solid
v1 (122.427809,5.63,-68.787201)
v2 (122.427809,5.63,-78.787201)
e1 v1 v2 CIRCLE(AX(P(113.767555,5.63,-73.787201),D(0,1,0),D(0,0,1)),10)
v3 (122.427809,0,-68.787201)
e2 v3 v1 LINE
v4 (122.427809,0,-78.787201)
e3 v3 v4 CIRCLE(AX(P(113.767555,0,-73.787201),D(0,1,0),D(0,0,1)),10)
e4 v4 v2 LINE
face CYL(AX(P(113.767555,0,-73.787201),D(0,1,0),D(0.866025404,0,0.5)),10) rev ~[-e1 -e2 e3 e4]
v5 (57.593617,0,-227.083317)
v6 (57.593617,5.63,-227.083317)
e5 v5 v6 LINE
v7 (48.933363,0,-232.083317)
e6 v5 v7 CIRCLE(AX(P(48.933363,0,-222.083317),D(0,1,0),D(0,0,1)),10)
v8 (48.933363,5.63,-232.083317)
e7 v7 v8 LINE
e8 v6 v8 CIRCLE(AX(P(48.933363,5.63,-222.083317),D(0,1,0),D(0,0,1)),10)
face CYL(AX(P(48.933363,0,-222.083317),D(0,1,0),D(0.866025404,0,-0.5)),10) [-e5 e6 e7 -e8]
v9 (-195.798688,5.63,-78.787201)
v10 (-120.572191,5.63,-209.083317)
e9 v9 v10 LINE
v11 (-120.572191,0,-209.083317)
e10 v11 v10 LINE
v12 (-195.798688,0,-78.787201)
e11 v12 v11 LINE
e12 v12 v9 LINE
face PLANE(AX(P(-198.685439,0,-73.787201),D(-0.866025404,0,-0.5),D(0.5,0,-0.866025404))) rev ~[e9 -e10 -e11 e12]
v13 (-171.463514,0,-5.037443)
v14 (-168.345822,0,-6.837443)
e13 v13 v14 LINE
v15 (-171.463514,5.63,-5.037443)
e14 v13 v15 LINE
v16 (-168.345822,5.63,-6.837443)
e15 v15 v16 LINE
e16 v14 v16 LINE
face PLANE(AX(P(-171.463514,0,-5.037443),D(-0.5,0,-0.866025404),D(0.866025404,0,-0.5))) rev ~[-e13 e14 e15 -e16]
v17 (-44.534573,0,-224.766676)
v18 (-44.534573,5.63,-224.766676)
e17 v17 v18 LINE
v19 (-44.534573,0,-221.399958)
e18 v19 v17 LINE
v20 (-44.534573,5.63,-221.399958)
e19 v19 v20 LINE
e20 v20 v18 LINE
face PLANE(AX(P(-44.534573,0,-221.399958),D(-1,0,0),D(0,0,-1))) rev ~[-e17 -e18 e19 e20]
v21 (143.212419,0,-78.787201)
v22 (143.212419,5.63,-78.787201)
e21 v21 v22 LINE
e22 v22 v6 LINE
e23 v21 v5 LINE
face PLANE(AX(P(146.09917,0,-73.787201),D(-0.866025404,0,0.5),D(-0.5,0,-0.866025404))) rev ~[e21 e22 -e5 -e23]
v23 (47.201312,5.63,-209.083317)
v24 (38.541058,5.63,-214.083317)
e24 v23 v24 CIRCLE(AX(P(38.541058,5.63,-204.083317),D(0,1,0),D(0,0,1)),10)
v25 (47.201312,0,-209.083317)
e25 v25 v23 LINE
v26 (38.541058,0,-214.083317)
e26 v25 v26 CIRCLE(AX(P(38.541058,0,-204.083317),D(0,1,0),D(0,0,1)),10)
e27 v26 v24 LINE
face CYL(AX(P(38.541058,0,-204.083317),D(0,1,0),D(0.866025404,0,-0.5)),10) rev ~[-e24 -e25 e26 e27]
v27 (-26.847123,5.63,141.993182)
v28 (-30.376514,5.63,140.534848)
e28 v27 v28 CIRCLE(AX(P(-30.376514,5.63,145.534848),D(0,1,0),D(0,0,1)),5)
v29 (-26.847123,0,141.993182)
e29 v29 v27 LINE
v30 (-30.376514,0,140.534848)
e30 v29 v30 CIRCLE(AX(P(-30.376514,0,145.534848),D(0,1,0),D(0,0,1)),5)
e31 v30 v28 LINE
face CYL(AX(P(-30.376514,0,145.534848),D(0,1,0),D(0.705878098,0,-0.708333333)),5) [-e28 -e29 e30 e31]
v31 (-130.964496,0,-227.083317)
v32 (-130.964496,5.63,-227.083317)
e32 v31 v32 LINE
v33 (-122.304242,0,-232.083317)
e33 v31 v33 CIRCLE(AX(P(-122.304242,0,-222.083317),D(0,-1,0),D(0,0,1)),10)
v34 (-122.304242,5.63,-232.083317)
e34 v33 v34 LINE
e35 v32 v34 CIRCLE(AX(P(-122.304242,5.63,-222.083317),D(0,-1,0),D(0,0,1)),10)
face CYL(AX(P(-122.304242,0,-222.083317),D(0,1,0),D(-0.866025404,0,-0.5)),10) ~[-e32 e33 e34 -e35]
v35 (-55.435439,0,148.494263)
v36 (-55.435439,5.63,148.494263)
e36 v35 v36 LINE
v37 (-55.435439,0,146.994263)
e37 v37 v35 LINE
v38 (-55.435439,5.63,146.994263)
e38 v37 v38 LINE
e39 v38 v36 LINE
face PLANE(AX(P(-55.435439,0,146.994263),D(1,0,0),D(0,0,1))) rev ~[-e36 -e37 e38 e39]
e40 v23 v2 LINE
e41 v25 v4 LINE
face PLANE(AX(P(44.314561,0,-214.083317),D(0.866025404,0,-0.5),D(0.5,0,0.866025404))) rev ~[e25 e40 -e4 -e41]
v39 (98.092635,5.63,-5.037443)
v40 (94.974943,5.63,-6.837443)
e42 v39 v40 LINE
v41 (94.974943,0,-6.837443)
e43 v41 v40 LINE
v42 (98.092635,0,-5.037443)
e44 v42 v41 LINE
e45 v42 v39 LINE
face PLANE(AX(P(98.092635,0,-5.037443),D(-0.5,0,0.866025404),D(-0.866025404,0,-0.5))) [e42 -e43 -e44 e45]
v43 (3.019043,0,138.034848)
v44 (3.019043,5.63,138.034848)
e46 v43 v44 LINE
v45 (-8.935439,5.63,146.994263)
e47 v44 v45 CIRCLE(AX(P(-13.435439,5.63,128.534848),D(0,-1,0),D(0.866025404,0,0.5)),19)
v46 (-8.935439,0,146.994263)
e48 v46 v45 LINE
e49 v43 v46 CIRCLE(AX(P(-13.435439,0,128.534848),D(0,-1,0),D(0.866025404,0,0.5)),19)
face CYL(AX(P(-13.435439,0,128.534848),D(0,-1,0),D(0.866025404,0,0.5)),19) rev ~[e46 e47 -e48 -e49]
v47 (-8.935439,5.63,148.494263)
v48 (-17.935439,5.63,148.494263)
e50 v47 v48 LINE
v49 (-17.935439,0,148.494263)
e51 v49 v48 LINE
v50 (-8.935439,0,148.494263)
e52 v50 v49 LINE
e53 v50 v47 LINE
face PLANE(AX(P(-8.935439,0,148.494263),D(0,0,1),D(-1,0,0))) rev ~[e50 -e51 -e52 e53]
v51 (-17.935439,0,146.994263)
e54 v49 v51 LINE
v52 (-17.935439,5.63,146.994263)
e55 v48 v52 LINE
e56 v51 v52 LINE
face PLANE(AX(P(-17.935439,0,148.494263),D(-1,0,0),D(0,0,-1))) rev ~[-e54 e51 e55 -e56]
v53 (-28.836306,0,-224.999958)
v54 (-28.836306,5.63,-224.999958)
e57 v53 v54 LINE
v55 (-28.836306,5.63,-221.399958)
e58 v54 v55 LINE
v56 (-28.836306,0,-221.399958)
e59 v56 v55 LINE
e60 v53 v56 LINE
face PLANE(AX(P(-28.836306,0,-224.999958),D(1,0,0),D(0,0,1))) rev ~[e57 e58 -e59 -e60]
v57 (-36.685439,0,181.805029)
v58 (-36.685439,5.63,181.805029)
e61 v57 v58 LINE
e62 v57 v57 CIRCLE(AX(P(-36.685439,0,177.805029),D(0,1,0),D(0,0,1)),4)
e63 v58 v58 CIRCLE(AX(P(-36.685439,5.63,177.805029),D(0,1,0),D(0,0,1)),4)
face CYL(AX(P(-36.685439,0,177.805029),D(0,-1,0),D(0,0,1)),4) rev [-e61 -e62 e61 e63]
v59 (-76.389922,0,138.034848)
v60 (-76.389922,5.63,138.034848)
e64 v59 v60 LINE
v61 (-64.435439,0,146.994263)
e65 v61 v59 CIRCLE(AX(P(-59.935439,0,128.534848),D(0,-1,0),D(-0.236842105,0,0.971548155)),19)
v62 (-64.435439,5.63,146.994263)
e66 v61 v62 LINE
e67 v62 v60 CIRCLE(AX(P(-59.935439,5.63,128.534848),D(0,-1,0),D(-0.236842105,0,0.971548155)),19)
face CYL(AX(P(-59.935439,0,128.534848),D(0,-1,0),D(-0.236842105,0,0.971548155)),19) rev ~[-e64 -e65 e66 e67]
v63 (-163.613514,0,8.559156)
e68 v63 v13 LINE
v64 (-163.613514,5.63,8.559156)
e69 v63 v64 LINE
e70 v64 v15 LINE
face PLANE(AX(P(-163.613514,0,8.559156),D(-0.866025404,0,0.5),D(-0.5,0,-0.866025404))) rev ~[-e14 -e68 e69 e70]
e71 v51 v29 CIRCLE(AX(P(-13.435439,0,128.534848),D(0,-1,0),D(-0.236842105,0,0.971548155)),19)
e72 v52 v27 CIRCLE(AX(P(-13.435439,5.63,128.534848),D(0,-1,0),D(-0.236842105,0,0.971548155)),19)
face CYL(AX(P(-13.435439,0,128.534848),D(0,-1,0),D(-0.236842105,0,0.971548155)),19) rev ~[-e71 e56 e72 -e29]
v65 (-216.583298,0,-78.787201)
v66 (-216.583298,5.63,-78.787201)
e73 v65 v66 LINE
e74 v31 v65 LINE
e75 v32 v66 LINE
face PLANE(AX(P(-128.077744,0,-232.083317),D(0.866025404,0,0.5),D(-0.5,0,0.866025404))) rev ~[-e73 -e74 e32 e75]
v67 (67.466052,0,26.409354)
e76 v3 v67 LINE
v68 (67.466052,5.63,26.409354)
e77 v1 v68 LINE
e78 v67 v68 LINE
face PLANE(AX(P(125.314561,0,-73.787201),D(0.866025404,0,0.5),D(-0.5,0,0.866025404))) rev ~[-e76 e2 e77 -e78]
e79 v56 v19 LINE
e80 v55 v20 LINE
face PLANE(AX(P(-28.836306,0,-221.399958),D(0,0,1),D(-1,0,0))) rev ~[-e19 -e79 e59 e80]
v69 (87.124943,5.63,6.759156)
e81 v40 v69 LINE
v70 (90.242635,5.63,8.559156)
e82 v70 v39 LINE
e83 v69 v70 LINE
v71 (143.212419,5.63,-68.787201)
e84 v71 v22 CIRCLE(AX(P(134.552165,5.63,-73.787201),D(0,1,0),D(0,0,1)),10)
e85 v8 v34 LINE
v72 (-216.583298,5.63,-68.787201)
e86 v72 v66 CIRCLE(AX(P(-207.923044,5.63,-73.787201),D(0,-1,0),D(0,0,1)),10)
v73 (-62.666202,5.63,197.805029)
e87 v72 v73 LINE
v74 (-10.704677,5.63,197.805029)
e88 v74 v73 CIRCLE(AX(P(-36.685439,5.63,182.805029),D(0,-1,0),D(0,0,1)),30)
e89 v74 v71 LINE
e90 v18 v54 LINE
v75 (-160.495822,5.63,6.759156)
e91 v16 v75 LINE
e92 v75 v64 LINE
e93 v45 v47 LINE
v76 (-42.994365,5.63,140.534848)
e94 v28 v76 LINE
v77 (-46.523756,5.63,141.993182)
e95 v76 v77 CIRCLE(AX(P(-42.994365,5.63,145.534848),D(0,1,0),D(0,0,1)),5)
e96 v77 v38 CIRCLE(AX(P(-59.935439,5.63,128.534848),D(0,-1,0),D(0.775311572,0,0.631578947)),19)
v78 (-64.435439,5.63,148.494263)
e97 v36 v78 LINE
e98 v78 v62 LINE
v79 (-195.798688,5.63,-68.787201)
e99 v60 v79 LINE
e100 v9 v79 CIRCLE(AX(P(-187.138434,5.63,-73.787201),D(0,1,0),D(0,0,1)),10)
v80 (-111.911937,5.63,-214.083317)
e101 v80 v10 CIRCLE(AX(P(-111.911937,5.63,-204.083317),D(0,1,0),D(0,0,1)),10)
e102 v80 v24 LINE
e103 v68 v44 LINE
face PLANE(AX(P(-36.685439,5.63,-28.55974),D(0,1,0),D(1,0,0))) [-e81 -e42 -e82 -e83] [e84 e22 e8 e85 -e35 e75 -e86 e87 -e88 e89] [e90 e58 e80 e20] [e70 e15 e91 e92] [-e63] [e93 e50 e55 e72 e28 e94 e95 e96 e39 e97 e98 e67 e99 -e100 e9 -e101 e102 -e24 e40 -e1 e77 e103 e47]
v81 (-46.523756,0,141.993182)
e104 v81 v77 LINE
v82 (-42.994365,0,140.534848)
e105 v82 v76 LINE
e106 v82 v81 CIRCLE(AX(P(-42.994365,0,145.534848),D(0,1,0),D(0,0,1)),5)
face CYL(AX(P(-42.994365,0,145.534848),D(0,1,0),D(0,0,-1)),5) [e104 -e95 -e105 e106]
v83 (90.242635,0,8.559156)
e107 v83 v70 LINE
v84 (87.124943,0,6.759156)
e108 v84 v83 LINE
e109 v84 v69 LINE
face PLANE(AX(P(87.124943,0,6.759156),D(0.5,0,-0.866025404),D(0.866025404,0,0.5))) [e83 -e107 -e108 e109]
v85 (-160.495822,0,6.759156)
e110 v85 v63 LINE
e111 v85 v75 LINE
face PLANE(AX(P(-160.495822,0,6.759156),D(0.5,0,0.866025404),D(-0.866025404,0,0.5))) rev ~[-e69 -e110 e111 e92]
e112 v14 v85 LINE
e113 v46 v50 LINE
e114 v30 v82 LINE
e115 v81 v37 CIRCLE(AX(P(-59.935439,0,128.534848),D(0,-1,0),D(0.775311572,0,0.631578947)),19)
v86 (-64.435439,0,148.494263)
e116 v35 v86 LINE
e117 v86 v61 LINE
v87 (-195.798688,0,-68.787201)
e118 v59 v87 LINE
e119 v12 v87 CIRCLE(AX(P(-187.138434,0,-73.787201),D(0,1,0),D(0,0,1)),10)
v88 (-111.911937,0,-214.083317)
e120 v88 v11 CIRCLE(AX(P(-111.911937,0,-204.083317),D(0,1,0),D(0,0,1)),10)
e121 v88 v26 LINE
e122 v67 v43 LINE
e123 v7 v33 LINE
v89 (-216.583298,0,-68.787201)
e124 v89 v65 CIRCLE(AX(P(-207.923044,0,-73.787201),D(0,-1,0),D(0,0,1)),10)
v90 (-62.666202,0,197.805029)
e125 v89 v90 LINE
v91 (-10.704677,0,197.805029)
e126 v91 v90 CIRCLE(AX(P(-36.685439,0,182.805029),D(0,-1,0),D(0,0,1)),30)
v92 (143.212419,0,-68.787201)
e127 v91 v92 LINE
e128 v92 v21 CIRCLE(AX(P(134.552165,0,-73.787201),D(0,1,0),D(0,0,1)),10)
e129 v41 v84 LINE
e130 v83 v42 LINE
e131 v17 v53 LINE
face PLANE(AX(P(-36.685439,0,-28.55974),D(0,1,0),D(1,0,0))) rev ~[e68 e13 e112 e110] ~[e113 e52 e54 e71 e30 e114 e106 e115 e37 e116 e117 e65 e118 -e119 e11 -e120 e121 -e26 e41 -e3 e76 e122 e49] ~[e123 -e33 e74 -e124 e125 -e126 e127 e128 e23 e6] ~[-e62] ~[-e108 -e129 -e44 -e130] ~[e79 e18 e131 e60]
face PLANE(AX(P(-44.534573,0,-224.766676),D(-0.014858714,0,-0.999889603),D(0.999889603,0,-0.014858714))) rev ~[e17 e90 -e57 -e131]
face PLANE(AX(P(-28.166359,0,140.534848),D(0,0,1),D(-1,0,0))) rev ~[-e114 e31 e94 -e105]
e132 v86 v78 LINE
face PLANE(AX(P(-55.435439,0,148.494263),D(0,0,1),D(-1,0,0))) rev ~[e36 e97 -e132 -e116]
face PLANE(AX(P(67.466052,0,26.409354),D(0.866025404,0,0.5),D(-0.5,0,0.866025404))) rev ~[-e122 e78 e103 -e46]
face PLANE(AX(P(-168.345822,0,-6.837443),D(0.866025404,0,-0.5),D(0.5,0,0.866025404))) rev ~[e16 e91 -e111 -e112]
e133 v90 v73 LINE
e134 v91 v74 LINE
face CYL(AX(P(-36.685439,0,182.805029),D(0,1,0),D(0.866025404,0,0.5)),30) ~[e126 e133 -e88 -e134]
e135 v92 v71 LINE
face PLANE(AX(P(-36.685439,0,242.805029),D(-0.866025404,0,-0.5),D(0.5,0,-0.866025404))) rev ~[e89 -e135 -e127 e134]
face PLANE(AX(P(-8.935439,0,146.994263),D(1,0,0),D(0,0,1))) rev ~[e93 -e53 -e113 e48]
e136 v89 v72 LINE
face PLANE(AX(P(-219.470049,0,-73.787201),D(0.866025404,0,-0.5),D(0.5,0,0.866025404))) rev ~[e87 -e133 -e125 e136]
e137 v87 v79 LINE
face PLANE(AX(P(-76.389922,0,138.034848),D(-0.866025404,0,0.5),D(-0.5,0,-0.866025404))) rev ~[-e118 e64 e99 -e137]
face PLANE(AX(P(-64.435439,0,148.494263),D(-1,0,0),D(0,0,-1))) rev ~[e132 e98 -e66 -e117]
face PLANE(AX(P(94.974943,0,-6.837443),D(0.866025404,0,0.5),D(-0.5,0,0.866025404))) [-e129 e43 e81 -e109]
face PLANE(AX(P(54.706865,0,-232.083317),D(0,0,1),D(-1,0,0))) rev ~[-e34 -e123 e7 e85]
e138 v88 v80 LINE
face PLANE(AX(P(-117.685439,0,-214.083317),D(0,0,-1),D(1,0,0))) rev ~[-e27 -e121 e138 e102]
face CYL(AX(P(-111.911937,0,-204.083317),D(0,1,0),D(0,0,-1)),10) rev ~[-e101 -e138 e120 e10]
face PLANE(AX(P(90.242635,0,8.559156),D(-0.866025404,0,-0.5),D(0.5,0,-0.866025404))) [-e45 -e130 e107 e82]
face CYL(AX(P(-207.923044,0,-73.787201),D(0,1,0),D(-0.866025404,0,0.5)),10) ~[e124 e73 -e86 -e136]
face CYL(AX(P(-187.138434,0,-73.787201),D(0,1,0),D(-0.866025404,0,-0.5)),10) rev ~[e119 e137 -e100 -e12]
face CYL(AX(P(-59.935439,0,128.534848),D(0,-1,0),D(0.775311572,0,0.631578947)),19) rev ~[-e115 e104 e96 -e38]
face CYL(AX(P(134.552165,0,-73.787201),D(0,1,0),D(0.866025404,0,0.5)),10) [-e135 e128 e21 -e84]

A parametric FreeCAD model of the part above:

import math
import FreeCAD as App
import Part
import Sketcher

V = App.Vector
Q = App.Units.Quantity


def edges_at(feature, points):
    """Names of the edges that pass closest to the given points."""
    edges = feature.Shape.Edges
    near = lambda p: min(range(len(edges)), key=lambda i: edges[i].distToShape(Part.Vertex(*p))[0])
    return sorted({f"Edge{near(p) + 1}" for p in points})


def add_polygon(sketch, points):
    """Adds a closed chain of lines whose ends are joined by coincident constraints."""
    first, n = sketch.GeometryCount, len(points)
    for a, b in zip(points, points[1:] + points[:1]):
        sketch.addGeometry(Part.LineSegment(App.Vector(*a, 0), App.Vector(*b, 0)), False)
    for i in range(n):
        sketch.addConstraint(Sketcher.Constraint("Coincident", first + i, 2, first + (i + 1) % n, 1))

doc = App.newDocument("Part")
body = doc.addObject("PartDesign::Body", "Body")

sketch1 = body.newObject("Sketcher::SketchObject", "Sketch")
sketch1.AttachmentSupport = (doc.getObject("XZ_Plane"), [""])
sketch1.MapMode = "FlatFace"
add_polygon(sketch1, [(-36.7, 242.8), (146.1, -73.8), (54.7, -232.1), (-128.1, -232.1), (-219.5, -73.8)])
add_polygon(sketch1, [(-163.6, 8.6), (-171.5, -5), (-168.3, -6.8), (-160.5, 6.8)])
sketch1.addGeometry(Part.Circle(V(-36.7, 177.8, 0), V(0, 0, 1), 4), False)
add_polygon(sketch1, [(95, -6.8), (98.1, -5), (90.2, 8.6), (87.1, 6.8)])
sketch1.addGeometry(Part.LineSegment(V(125.3, -73.8, 0), V(67.5, 26.4, 0)), False)
sketch1.addGeometry(Part.LineSegment(V(67.5, 26.4, 0), V(3, 138, 0)), False)
sketch1.addGeometry(Part.ArcOfCircle(Part.Circle(V(-13.4, 128.5, 0), V(0, 0, 1), 19), math.radians(30), math.radians(76)), False)
sketch1.addGeometry(Part.LineSegment(V(-8.9, 147, 0), V(-8.9, 148.5, 0)), False)
sketch1.addGeometry(Part.LineSegment(V(-8.9, 148.5, 0), V(-17.9, 148.5, 0)), False)
sketch1.addGeometry(Part.LineSegment(V(-17.9, 148.5, 0), V(-17.9, 147, 0)), False)
sketch1.addGeometry(Part.ArcOfCircle(Part.Circle(V(-13.4, 128.5, 0), V(0, 0, 1), 19), math.radians(104), math.radians(141)), False)
sketch1.addGeometry(Part.LineSegment(V(-28.2, 140.5, 0), V(-45.2, 140.5, 0)), False)
sketch1.addGeometry(Part.ArcOfCircle(Part.Circle(V(-59.9, 128.5, 0), V(0, 0, 1), 19), math.radians(39), math.radians(76)), False)
sketch1.addGeometry(Part.LineSegment(V(-55.4, 147, 0), V(-55.4, 148.5, 0)), False)
sketch1.addGeometry(Part.LineSegment(V(-55.4, 148.5, 0), V(-64.4, 148.5, 0)), False)
sketch1.addGeometry(Part.LineSegment(V(-64.4, 148.5, 0), V(-64.4, 147, 0)), False)
sketch1.addGeometry(Part.ArcOfCircle(Part.Circle(V(-59.9, 128.5, 0), V(0, 0, 1), 19), math.radians(104), math.radians(150)), False)
sketch1.addGeometry(Part.LineSegment(V(-76.4, 138, 0), V(-198.7, -73.8, 0)), False)
sketch1.addGeometry(Part.LineSegment(V(-198.7, -73.8, 0), V(-117.7, -214.1, 0)), False)
sketch1.addGeometry(Part.LineSegment(V(-117.7, -214.1, 0), V(44.3, -214.1, 0)), False)
sketch1.addGeometry(Part.LineSegment(V(44.3, -214.1, 0), V(125.3, -73.8, 0)), False)
add_polygon(sketch1, [(-44.5, -221.4), (-44.5, -224.8), (-28.8, -225), (-28.8, -221.4)])
sketch1.addConstraint([
    Sketcher.Constraint("Coincident", 14, 2, 15, 1),
    Sketcher.Constraint("Tangent", 15, 2, 16, 1),
    Sketcher.Constraint("Coincident", 16, 2, 17, 1),
    Sketcher.Constraint("Coincident", 17, 2, 18, 1),
    Sketcher.Constraint("Coincident", 18, 2, 19, 1),
    Sketcher.Constraint("Coincident", 19, 2, 20, 1),
    Sketcher.Constraint("Coincident", 20, 2, 21, 1),
    Sketcher.Constraint("Coincident", 21, 2, 22, 1),
    Sketcher.Constraint("Coincident", 22, 2, 23, 1),
    Sketcher.Constraint("Coincident", 23, 2, 24, 1),
    Sketcher.Constraint("Coincident", 24, 2, 25, 1),
    Sketcher.Constraint("Coincident", 25, 2, 26, 1),
    Sketcher.Constraint("Tangent", 26, 2, 27, 1),
    Sketcher.Constraint("Coincident", 27, 2, 28, 1),
    Sketcher.Constraint("Coincident", 28, 2, 29, 1),
    Sketcher.Constraint("Coincident", 29, 2, 30, 1),
    Sketcher.Constraint("Coincident", 30, 2, 14, 1),
    Sketcher.Constraint("Horizontal", 2),
    Sketcher.Constraint("Vertical", 17),
    Sketcher.Constraint("Horizontal", 18),
    Sketcher.Constraint("Vertical", 19),
    Sketcher.Constraint("Horizontal", 21),
    Sketcher.Constraint("Vertical", 23),
    Sketcher.Constraint("Horizontal", 24),
    Sketcher.Constraint("Vertical", 25),
    Sketcher.Constraint("Horizontal", 29),
    Sketcher.Constraint("Vertical", 31),
    Sketcher.Constraint("Vertical", 33),
    Sketcher.Constraint("Horizontal", 34),
    Sketcher.Constraint("Coincident", 20, 3, 16, 3),
    Sketcher.Constraint("Coincident", 26, 3, 22, 3),
    Sketcher.Constraint("Equal", 16, 20),
    Sketcher.Constraint("Equal", 20, 22),
    Sketcher.Constraint("Equal", 22, 26),
    Sketcher.Constraint("Parallel", 0, 3),
    Sketcher.Constraint("Parallel", 1, 4),
    Sketcher.Constraint("Parallel", 4, 5),
    Sketcher.Constraint("Perpendicular", 5, 6),
    Sketcher.Constraint("Perpendicular", 6, 7),
    Sketcher.Constraint("Perpendicular", 7, 8),
    Sketcher.Constraint("Perpendicular", 3, 10),
    Sketcher.Constraint("Perpendicular", 10, 11),
    Sketcher.Constraint("Perpendicular", 11, 12),
    Sketcher.Constraint("Perpendicular", 12, 13),
    Sketcher.Constraint("Parallel", 13, 14),
    Sketcher.Constraint("Parallel", 14, 15),
    Sketcher.Constraint("Perpendicular", 8, 27),
    Sketcher.Constraint("Parallel", 15, 28),
    Sketcher.Constraint("Parallel", 27, 30),
    Sketcher.Constraint("Horizontal", 20, 3, 22, 3),
    Sketcher.Constraint("Horizontal", 0, 2, 3, 2),
    Sketcher.Constraint("Horizontal", 5, 2, 10, 2),
    Sketcher.Constraint("Horizontal", 8, 2, 11, 2),
    Sketcher.Constraint("Horizontal", 7, 2, 12, 2),
    Sketcher.Constraint("Horizontal", 16, 2, 19, 2),
    Sketcher.Constraint("Horizontal", 19, 2, 22, 2),
    Sketcher.Constraint("Horizontal", 18, 2, 23, 2),
    Sketcher.Constraint("Horizontal", 22, 2, 25, 2),
    Sketcher.Constraint("Horizontal", 15, 2, 26, 2),
    Sketcher.Constraint("Horizontal", 3, 2, 27, 2),
    Sketcher.Constraint("Horizontal", 27, 2, 30, 2),
    Sketcher.Constraint("Vertical", 9, 3, 4, 2),
    Sketcher.Constraint("Equal", 13, 32),
    Sketcher.Constraint("Diameter", 9, Q("8 mm")),
    Sketcher.Constraint("Radius", 16, Q("19 mm")),
    Sketcher.Constraint("DistanceX", 18, 2, 18, 1, Q("9 mm")),
    Sketcher.Constraint("DistanceX", 29, 1, 29, 2, Q("162 mm")),
    Sketcher.Constraint("Angle", 0, Q("-60 deg")),
    Sketcher.Constraint("Distance", 28, Q("162 mm")),
    Sketcher.Constraint("DistanceY", 17, 1, 17, 2, Q("1.5 mm")),
    Sketcher.Constraint("DistanceY", 33, 1, 33, 2, Q("3.6 mm")),
    Sketcher.Constraint("DistanceY", 9, 3, 4, 2, Q("65 mm")),
    Sketcher.Constraint("DistanceX", 22, 3, 16, 2, Q("51 mm")),
    Sketcher.Constraint("DistanceY", 20, 3, 20, 2, Q("12 mm")),
    Sketcher.Constraint("DistanceY", 2, 2, 28, 2, Q("18 mm")),
    Sketcher.Constraint("Distance", 5, Q("15.7 mm")),
    Sketcher.Constraint("Distance", 6, Q("3.6 mm")),
    Sketcher.Constraint("DistanceX", 9, 3, 16, 3, Q("23.25 mm")),
    Sketcher.Constraint("DistanceX", 2, 2, 2, 1, Q("182.78461 mm")),
    Sketcher.Constraint("DistanceY", 31, 2, 31, 1, Q("3.366718 mm")),
    Sketcher.Constraint("DistanceY", 0, 2, -1, 1, Q("73.787201 mm")),
    Sketcher.Constraint("DistanceY", 12, 2, 14, 2, Q("19.650199 mm")),
    Sketcher.Constraint("DistanceX", 9, 3, -1, 1, Q("36.685439 mm")),
    Sketcher.Constraint("DistanceY", 3, 2, 5, 2, Q("68.749758 mm")),
    Sketcher.Constraint("DistanceX", 14, 2, 12, 2, Q("19.658891 mm")),
    Sketcher.Constraint("DistanceY", 31, 2, 28, 2, Q("10.683359 mm")),
    Sketcher.Constraint("DistanceX", 2, 2, 31, 2, Q("83.543171 mm")),
    Sketcher.Constraint("DistanceX", 5, 2, -1, 1, Q("171.463514 mm")),
])
pad1 = body.newObject("PartDesign::Pad", "Pad")
pad1.Profile = sketch1
pad1.Length = 5.63
pad1.Reversed = True
doc.recompute()

fillet = body.newObject("PartDesign::Fillet", "Fillet")
fillet.Base = (pad1, edges_at(pad1, [
    (125.315, 2.815, -73.787),
    (44.315, 2.815, -214.083),
    (-117.685, 2.815, -214.083),
    (-198.685, 2.815, -73.787),
    (146.099, 2.815, -73.787),
    (-219.47, 2.815, -73.787),
    (-128.078, 2.815, -232.083),
    (54.707, 2.815, -232.083),
]))
fillet.Radius = 10
doc.recompute()

fillet2 = body.newObject("PartDesign::Fillet", "Fillet001")
fillet2.Base = (fillet, edges_at(fillet, [(-36.685, 2.815, 242.805)]))
fillet2.Radius = 30
doc.recompute()

fillet3 = body.newObject("PartDesign::Fillet", "Fillet002")
fillet3.Base = (fillet2, edges_at(fillet2, [(-45.205, 2.815, 140.535), (-28.166, 2.815, 140.535)]))
fillet3.Radius = 5

doc.recompute()
